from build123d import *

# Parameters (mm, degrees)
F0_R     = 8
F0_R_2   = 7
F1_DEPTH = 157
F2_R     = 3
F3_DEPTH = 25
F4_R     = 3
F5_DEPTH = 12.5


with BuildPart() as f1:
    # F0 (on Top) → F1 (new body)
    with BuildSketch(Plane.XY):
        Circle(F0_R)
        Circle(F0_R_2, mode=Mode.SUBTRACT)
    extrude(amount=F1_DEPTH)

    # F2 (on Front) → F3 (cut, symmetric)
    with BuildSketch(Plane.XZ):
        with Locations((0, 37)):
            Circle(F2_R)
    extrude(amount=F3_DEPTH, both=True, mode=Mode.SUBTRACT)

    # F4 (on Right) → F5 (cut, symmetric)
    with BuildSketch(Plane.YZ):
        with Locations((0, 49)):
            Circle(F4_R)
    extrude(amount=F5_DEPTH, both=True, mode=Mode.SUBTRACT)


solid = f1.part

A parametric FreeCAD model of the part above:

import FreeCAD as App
import Part
import Sketcher
from FreeCAD import Vector
Q = App.Units.Quantity

doc = App.newDocument("Part")
body = doc.addObject("PartDesign::Body", "Body")

# Sketch on XY plane
sketch1 = body.newObject("Sketcher::SketchObject", "Sketch")
sketch1.AttachmentSupport = (doc.getObject("XY_Plane"), [""])
sketch1.MapMode = "FlatFace"
sketch1.addGeometry(Part.Circle(Vector(0, 0, 0), Vector(0, 0, 1), 8), False)
sketch1.addGeometry(Part.Circle(Vector(0, 0, 0), Vector(0, 0, 1), 7), False)
sketch1.addConstraint(Sketcher.Constraint("Coincident", 0, 3, -1, 1))
sketch1.addConstraint(Sketcher.Constraint("Coincident", 1, 3, -1, 1))
sketch1.addConstraint(Sketcher.Constraint("Diameter", 0, Q("16 mm")))
sketch1.addConstraint(Sketcher.Constraint("Diameter", 1, Q("14 mm")))
pad1 = body.newObject("PartDesign::Pad", "Pad")
pad1.Profile = sketch1
pad1.Length = 157

# Sketch on XZ plane
sketch2 = body.newObject("Sketcher::SketchObject", "Sketch001")
sketch2.AttachmentSupport = (doc.getObject("XZ_Plane"), [""])
sketch2.MapMode = "FlatFace"
sketch2.addGeometry(Part.Circle(Vector(0, 37, 0), Vector(0, 0, 1), 3), False)
sketch2.addConstraint(Sketcher.Constraint("PointOnObject", 0, 3, -2))
sketch2.addConstraint(Sketcher.Constraint("Diameter", 0, Q("6 mm")))
sketch2.addConstraint(Sketcher.Constraint("DistanceY", -1, 1, 0, 3, Q("37 mm")))
pocket1 = body.newObject("PartDesign::Pocket", "Pocket")
pocket1.Profile = sketch2
pocket1.Length = 50
pocket1.Midplane = True

# Sketch on YZ plane
sketch3 = body.newObject("Sketcher::SketchObject", "Sketch002")
sketch3.AttachmentSupport = (doc.getObject("YZ_Plane"), [""])
sketch3.MapMode = "FlatFace"
sketch3.addGeometry(Part.Circle(Vector(0, 49, 0), Vector(0, 0, 1), 3), False)
sketch3.addConstraint(Sketcher.Constraint("PointOnObject", 0, 3, -2))
sketch3.addConstraint(Sketcher.Constraint("Diameter", 0, Q("6 mm")))
sketch3.addConstraint(Sketcher.Constraint("DistanceY", -1, 1, 0, 3, Q("49 mm")))
pocket2 = body.newObject("PartDesign::Pocket", "Pocket001")
pocket2.Profile = sketch3
pocket2.Length = 25
pocket2.Midplane = True

doc.recompute()
